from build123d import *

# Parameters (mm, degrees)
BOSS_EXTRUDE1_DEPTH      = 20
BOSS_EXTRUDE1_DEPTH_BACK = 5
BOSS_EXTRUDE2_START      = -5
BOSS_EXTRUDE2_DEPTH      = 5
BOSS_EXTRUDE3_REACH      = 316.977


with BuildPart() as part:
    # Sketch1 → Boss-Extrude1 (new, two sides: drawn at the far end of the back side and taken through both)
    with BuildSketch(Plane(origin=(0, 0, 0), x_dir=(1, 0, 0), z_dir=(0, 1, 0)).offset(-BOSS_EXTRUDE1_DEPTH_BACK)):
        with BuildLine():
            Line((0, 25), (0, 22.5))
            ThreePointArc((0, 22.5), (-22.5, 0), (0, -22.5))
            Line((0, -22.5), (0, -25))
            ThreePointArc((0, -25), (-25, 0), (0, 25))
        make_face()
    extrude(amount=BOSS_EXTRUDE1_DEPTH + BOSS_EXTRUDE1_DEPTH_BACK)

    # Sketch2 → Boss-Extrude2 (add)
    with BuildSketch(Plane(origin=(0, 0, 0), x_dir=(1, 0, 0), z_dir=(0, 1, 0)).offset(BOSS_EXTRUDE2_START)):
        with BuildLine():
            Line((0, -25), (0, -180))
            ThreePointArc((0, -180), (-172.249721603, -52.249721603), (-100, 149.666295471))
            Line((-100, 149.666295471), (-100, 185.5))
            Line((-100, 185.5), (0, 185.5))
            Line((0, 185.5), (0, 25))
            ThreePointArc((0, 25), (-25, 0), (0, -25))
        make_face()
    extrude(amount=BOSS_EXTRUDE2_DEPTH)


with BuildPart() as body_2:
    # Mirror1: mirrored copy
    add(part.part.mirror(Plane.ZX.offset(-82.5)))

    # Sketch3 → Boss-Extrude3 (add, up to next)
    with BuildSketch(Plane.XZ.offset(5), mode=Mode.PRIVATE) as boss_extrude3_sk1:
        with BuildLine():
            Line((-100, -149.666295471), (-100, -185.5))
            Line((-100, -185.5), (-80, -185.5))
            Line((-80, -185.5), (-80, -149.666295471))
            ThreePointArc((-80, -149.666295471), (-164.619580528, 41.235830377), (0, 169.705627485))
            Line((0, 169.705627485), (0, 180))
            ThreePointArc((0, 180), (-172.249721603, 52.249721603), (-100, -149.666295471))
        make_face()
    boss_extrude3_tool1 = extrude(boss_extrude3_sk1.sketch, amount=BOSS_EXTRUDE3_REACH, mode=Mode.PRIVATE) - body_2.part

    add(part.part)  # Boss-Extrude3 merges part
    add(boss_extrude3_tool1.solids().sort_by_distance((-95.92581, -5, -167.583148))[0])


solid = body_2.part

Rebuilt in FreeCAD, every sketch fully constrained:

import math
import FreeCAD as App
import Part
import Sketcher
Q = App.Units.Quantity

doc = App.newDocument("Part")
body = doc.addObject("PartDesign::Body", "Body")

# Sketch on XZ plane
sketch1 = doc.addObject("Sketcher::SketchObject", "Sketch")
body.addObject(sketch1)
sketch1.AttachmentSupport = (doc.XZ_Plane, [""])
sketch1.MapMode = "FlatFace"
sketch1.addGeometry(Part.LineSegment(App.Vector(0, -22.5, 0), App.Vector(0, -25, 0)), False)
sketch1.addGeometry(Part.ArcOfCircle(Part.Circle(App.Vector(0, 0, 0), App.Vector(0, 0, 1), 25), math.radians(90), math.radians(270)), False)
sketch1.addGeometry(Part.LineSegment(App.Vector(0, 25, 0), App.Vector(0, 22.5, 0)), False)
sketch1.addGeometry(Part.ArcOfCircle(Part.Circle(App.Vector(0, 0, 0), App.Vector(0, 0, 1), 22.5), math.radians(90), math.radians(270)), False)
sketch1.addConstraint(Sketcher.Constraint("Coincident", 0, 2, 1, 2))
sketch1.addConstraint(Sketcher.Constraint("Coincident", 1, 1, 2, 1))
sketch1.addConstraint(Sketcher.Constraint("Coincident", 2, 2, 3, 1))
sketch1.addConstraint(Sketcher.Constraint("Coincident", 3, 2, 0, 1))
sketch1.addConstraint(Sketcher.Constraint("Vertical", 0))
sketch1.addConstraint(Sketcher.Constraint("Vertical", 2))
sketch1.addConstraint(Sketcher.Constraint("Coincident", 1, 3, -1, 1))
sketch1.addConstraint(Sketcher.Constraint("Coincident", 3, 3, -1, 1))
sketch1.addConstraint(Sketcher.Constraint("PointOnObject", 0, 2, -2))
sketch1.addConstraint(Sketcher.Constraint("PointOnObject", 1, 1, -2))
sketch1.addConstraint(Sketcher.Constraint("Radius", 1, Q("25 mm")))
sketch1.addConstraint(Sketcher.Constraint("Radius", 3, Q("22.5 mm")))
pad1 = doc.addObject("PartDesign::Pad", "Pad")
body.addObject(pad1)
pad1.Profile = sketch1
pad1.Type = "TwoLengths"
pad1.Length = 20
pad1.Length2 = 5
pad1.Reversed = True

# Sketch on XZ plane
sketch2 = doc.addObject("Sketcher::SketchObject", "Sketch001")
body.addObject(sketch2)
sketch2.AttachmentSupport = (doc.XZ_Plane, [""])
sketch2.MapMode = "FlatFace"
sketch2.AttachmentOffset = App.Placement(App.Vector(0, 0, 5), App.Rotation())
sketch2.addGeometry(Part.LineSegment(App.Vector(0, 180, 0), App.Vector(0, 25, 0)), False)
sketch2.addGeometry(Part.ArcOfCircle(Part.Circle(App.Vector(0, 0, 0), App.Vector(0, 0, 1), 25), math.radians(90), math.radians(270)), False)
sketch2.addGeometry(Part.LineSegment(App.Vector(0, -25, 0), App.Vector(0, -186, 0)), False)
sketch2.addGeometry(Part.LineSegment(App.Vector(0, -186, 0), App.Vector(-100, -186, 0)), False)
sketch2.addGeometry(Part.LineSegment(App.Vector(-100, -186, 0), App.Vector(-100, -150, 0)), False)
sketch2.addGeometry(Part.ArcOfCircle(Part.Circle(App.Vector(0, 0, 0), App.Vector(0, 0, 1), 180), math.radians(90), math.radians(236)), False)
sketch2.addConstraint(Sketcher.Constraint("Coincident", 0, 2, 1, 1))
sketch2.addConstraint(Sketcher.Constraint("Coincident", 1, 2, 2, 1))
sketch2.addConstraint(Sketcher.Constraint("Coincident", 2, 2, 3, 1))
sketch2.addConstraint(Sketcher.Constraint("Coincident", 3, 2, 4, 1))
sketch2.addConstraint(Sketcher.Constraint("Coincident", 4, 2, 5, 2))
sketch2.addConstraint(Sketcher.Constraint("Coincident", 5, 1, 0, 1))
sketch2.addConstraint(Sketcher.Constraint("Vertical", 0))
sketch2.addConstraint(Sketcher.Constraint("Vertical", 2))
sketch2.addConstraint(Sketcher.Constraint("Horizontal", 3))
sketch2.addConstraint(Sketcher.Constraint("Vertical", 4))
sketch2.addConstraint(Sketcher.Constraint("Coincident", 1, 3, -1, 1))
sketch2.addConstraint(Sketcher.Constraint("Coincident", 5, 3, -1, 1))
sketch2.addConstraint(Sketcher.Constraint("PointOnObject", 0, 2, -2))
sketch2.addConstraint(Sketcher.Constraint("PointOnObject", 1, 2, -2))
sketch2.addConstraint(Sketcher.Constraint("Radius", 1, Q("25 mm")))
sketch2.addConstraint(Sketcher.Constraint("Radius", 5, Q("180 mm")))
sketch2.addConstraint(Sketcher.Constraint("DistanceX", 3, 2, 3, 1, Q("100 mm")))
sketch2.addConstraint(Sketcher.Constraint("DistanceY", 2, 2, 2, 1, Q("160.5 mm")))
pad2 = doc.addObject("PartDesign::Pad", "Pad001")
body.addObject(pad2)
pad2.Profile = sketch2
pad2.Length = 5
pad2.Reversed = True
body2 = doc.addObject("PartDesign::Body", "Body001")
body2.AllowCompound = True
doc.recompute()

mirroring = doc.addObject("Part::Mirroring", "Mirroring")
mirroring.Source = body
mirroring.Base = App.Vector(0, -82.5, 0)
mirroring.Normal = App.Vector(0, 1, 0)
body2.BaseFeature = mirroring
doc.recompute()

boolean = doc.addObject("PartDesign::Boolean", "Boolean")
body2.addObject(boolean)
boolean.Type = "Fuse"
boolean.addObjects([body])

# Sketch on XZ plane
sketch3 = doc.addObject("Sketcher::SketchObject", "Sketch002")
body2.addObject(sketch3)
sketch3.AttachmentSupport = (doc.getObject("XZ_Plane001"), [""])
sketch3.MapMode = "FlatFace"
sketch3.AttachmentOffset = App.Placement(App.Vector(0, 0, 5), App.Rotation())
sketch3.addGeometry(Part.LineSegment(App.Vector(-100, -150, 0), App.Vector(-100, -186, 0)), False)
sketch3.addGeometry(Part.LineSegment(App.Vector(-100, -186, 0), App.Vector(-80, -186, 0)), False)
sketch3.addGeometry(Part.LineSegment(App.Vector(-80, -186, 0), App.Vector(-80, -150, 0)), False)
sketch3.addGeometry(Part.ArcOfCircle(Part.Circle(App.Vector(0, 0, 0), App.Vector(0, 0, 1), 170), math.radians(90), math.radians(242)), False)
sketch3.addGeometry(Part.LineSegment(App.Vector(0, 170, 0), App.Vector(0, 180, 0)), False)
sketch3.addGeometry(Part.ArcOfCircle(Part.Circle(App.Vector(0, 0, 0), App.Vector(0, 0, 1), 180), math.radians(90), math.radians(236)), False)
sketch3.addConstraint(Sketcher.Constraint("Coincident", 0, 2, 1, 1))
sketch3.addConstraint(Sketcher.Constraint("Coincident", 1, 2, 2, 1))
sketch3.addConstraint(Sketcher.Constraint("Coincident", 2, 2, 3, 2))
sketch3.addConstraint(Sketcher.Constraint("Coincident", 3, 1, 4, 1))
sketch3.addConstraint(Sketcher.Constraint("Coincident", 4, 2, 5, 1))
sketch3.addConstraint(Sketcher.Constraint("Coincident", 5, 2, 0, 1))
sketch3.addConstraint(Sketcher.Constraint("Vertical", 0))
sketch3.addConstraint(Sketcher.Constraint("Horizontal", 1))
sketch3.addConstraint(Sketcher.Constraint("Vertical", 2))
sketch3.addConstraint(Sketcher.Constraint("Vertical", 4))
sketch3.addConstraint(Sketcher.Constraint("Coincident", 3, 3, -1, 1))
sketch3.addConstraint(Sketcher.Constraint("Coincident", 5, 3, -1, 1))
sketch3.addConstraint(Sketcher.Constraint("PointOnObject", 3, 1, -2))
sketch3.addConstraint(Sketcher.Constraint("Horizontal", 2, 2, 5, 2))
sketch3.addConstraint(Sketcher.Constraint("Radius", 5, Q("180 mm")))
sketch3.addConstraint(Sketcher.Constraint("DistanceX", 1, 1, 1, 2, Q("20 mm")))
sketch3.addConstraint(Sketcher.Constraint("DistanceX", 0, 2, -1, 1, Q("100 mm")))
sketch3.addConstraint(Sketcher.Constraint("DistanceY", 0, 2, -1, 1, Q("185.5 mm")))
pad3 = doc.addObject("PartDesign::Pad", "Pad002")
body2.addObject(pad3)
pad3.Profile = sketch3
pad3.Type = "UpToFirst"
mirroring.Visibility = False

doc.recompute()
